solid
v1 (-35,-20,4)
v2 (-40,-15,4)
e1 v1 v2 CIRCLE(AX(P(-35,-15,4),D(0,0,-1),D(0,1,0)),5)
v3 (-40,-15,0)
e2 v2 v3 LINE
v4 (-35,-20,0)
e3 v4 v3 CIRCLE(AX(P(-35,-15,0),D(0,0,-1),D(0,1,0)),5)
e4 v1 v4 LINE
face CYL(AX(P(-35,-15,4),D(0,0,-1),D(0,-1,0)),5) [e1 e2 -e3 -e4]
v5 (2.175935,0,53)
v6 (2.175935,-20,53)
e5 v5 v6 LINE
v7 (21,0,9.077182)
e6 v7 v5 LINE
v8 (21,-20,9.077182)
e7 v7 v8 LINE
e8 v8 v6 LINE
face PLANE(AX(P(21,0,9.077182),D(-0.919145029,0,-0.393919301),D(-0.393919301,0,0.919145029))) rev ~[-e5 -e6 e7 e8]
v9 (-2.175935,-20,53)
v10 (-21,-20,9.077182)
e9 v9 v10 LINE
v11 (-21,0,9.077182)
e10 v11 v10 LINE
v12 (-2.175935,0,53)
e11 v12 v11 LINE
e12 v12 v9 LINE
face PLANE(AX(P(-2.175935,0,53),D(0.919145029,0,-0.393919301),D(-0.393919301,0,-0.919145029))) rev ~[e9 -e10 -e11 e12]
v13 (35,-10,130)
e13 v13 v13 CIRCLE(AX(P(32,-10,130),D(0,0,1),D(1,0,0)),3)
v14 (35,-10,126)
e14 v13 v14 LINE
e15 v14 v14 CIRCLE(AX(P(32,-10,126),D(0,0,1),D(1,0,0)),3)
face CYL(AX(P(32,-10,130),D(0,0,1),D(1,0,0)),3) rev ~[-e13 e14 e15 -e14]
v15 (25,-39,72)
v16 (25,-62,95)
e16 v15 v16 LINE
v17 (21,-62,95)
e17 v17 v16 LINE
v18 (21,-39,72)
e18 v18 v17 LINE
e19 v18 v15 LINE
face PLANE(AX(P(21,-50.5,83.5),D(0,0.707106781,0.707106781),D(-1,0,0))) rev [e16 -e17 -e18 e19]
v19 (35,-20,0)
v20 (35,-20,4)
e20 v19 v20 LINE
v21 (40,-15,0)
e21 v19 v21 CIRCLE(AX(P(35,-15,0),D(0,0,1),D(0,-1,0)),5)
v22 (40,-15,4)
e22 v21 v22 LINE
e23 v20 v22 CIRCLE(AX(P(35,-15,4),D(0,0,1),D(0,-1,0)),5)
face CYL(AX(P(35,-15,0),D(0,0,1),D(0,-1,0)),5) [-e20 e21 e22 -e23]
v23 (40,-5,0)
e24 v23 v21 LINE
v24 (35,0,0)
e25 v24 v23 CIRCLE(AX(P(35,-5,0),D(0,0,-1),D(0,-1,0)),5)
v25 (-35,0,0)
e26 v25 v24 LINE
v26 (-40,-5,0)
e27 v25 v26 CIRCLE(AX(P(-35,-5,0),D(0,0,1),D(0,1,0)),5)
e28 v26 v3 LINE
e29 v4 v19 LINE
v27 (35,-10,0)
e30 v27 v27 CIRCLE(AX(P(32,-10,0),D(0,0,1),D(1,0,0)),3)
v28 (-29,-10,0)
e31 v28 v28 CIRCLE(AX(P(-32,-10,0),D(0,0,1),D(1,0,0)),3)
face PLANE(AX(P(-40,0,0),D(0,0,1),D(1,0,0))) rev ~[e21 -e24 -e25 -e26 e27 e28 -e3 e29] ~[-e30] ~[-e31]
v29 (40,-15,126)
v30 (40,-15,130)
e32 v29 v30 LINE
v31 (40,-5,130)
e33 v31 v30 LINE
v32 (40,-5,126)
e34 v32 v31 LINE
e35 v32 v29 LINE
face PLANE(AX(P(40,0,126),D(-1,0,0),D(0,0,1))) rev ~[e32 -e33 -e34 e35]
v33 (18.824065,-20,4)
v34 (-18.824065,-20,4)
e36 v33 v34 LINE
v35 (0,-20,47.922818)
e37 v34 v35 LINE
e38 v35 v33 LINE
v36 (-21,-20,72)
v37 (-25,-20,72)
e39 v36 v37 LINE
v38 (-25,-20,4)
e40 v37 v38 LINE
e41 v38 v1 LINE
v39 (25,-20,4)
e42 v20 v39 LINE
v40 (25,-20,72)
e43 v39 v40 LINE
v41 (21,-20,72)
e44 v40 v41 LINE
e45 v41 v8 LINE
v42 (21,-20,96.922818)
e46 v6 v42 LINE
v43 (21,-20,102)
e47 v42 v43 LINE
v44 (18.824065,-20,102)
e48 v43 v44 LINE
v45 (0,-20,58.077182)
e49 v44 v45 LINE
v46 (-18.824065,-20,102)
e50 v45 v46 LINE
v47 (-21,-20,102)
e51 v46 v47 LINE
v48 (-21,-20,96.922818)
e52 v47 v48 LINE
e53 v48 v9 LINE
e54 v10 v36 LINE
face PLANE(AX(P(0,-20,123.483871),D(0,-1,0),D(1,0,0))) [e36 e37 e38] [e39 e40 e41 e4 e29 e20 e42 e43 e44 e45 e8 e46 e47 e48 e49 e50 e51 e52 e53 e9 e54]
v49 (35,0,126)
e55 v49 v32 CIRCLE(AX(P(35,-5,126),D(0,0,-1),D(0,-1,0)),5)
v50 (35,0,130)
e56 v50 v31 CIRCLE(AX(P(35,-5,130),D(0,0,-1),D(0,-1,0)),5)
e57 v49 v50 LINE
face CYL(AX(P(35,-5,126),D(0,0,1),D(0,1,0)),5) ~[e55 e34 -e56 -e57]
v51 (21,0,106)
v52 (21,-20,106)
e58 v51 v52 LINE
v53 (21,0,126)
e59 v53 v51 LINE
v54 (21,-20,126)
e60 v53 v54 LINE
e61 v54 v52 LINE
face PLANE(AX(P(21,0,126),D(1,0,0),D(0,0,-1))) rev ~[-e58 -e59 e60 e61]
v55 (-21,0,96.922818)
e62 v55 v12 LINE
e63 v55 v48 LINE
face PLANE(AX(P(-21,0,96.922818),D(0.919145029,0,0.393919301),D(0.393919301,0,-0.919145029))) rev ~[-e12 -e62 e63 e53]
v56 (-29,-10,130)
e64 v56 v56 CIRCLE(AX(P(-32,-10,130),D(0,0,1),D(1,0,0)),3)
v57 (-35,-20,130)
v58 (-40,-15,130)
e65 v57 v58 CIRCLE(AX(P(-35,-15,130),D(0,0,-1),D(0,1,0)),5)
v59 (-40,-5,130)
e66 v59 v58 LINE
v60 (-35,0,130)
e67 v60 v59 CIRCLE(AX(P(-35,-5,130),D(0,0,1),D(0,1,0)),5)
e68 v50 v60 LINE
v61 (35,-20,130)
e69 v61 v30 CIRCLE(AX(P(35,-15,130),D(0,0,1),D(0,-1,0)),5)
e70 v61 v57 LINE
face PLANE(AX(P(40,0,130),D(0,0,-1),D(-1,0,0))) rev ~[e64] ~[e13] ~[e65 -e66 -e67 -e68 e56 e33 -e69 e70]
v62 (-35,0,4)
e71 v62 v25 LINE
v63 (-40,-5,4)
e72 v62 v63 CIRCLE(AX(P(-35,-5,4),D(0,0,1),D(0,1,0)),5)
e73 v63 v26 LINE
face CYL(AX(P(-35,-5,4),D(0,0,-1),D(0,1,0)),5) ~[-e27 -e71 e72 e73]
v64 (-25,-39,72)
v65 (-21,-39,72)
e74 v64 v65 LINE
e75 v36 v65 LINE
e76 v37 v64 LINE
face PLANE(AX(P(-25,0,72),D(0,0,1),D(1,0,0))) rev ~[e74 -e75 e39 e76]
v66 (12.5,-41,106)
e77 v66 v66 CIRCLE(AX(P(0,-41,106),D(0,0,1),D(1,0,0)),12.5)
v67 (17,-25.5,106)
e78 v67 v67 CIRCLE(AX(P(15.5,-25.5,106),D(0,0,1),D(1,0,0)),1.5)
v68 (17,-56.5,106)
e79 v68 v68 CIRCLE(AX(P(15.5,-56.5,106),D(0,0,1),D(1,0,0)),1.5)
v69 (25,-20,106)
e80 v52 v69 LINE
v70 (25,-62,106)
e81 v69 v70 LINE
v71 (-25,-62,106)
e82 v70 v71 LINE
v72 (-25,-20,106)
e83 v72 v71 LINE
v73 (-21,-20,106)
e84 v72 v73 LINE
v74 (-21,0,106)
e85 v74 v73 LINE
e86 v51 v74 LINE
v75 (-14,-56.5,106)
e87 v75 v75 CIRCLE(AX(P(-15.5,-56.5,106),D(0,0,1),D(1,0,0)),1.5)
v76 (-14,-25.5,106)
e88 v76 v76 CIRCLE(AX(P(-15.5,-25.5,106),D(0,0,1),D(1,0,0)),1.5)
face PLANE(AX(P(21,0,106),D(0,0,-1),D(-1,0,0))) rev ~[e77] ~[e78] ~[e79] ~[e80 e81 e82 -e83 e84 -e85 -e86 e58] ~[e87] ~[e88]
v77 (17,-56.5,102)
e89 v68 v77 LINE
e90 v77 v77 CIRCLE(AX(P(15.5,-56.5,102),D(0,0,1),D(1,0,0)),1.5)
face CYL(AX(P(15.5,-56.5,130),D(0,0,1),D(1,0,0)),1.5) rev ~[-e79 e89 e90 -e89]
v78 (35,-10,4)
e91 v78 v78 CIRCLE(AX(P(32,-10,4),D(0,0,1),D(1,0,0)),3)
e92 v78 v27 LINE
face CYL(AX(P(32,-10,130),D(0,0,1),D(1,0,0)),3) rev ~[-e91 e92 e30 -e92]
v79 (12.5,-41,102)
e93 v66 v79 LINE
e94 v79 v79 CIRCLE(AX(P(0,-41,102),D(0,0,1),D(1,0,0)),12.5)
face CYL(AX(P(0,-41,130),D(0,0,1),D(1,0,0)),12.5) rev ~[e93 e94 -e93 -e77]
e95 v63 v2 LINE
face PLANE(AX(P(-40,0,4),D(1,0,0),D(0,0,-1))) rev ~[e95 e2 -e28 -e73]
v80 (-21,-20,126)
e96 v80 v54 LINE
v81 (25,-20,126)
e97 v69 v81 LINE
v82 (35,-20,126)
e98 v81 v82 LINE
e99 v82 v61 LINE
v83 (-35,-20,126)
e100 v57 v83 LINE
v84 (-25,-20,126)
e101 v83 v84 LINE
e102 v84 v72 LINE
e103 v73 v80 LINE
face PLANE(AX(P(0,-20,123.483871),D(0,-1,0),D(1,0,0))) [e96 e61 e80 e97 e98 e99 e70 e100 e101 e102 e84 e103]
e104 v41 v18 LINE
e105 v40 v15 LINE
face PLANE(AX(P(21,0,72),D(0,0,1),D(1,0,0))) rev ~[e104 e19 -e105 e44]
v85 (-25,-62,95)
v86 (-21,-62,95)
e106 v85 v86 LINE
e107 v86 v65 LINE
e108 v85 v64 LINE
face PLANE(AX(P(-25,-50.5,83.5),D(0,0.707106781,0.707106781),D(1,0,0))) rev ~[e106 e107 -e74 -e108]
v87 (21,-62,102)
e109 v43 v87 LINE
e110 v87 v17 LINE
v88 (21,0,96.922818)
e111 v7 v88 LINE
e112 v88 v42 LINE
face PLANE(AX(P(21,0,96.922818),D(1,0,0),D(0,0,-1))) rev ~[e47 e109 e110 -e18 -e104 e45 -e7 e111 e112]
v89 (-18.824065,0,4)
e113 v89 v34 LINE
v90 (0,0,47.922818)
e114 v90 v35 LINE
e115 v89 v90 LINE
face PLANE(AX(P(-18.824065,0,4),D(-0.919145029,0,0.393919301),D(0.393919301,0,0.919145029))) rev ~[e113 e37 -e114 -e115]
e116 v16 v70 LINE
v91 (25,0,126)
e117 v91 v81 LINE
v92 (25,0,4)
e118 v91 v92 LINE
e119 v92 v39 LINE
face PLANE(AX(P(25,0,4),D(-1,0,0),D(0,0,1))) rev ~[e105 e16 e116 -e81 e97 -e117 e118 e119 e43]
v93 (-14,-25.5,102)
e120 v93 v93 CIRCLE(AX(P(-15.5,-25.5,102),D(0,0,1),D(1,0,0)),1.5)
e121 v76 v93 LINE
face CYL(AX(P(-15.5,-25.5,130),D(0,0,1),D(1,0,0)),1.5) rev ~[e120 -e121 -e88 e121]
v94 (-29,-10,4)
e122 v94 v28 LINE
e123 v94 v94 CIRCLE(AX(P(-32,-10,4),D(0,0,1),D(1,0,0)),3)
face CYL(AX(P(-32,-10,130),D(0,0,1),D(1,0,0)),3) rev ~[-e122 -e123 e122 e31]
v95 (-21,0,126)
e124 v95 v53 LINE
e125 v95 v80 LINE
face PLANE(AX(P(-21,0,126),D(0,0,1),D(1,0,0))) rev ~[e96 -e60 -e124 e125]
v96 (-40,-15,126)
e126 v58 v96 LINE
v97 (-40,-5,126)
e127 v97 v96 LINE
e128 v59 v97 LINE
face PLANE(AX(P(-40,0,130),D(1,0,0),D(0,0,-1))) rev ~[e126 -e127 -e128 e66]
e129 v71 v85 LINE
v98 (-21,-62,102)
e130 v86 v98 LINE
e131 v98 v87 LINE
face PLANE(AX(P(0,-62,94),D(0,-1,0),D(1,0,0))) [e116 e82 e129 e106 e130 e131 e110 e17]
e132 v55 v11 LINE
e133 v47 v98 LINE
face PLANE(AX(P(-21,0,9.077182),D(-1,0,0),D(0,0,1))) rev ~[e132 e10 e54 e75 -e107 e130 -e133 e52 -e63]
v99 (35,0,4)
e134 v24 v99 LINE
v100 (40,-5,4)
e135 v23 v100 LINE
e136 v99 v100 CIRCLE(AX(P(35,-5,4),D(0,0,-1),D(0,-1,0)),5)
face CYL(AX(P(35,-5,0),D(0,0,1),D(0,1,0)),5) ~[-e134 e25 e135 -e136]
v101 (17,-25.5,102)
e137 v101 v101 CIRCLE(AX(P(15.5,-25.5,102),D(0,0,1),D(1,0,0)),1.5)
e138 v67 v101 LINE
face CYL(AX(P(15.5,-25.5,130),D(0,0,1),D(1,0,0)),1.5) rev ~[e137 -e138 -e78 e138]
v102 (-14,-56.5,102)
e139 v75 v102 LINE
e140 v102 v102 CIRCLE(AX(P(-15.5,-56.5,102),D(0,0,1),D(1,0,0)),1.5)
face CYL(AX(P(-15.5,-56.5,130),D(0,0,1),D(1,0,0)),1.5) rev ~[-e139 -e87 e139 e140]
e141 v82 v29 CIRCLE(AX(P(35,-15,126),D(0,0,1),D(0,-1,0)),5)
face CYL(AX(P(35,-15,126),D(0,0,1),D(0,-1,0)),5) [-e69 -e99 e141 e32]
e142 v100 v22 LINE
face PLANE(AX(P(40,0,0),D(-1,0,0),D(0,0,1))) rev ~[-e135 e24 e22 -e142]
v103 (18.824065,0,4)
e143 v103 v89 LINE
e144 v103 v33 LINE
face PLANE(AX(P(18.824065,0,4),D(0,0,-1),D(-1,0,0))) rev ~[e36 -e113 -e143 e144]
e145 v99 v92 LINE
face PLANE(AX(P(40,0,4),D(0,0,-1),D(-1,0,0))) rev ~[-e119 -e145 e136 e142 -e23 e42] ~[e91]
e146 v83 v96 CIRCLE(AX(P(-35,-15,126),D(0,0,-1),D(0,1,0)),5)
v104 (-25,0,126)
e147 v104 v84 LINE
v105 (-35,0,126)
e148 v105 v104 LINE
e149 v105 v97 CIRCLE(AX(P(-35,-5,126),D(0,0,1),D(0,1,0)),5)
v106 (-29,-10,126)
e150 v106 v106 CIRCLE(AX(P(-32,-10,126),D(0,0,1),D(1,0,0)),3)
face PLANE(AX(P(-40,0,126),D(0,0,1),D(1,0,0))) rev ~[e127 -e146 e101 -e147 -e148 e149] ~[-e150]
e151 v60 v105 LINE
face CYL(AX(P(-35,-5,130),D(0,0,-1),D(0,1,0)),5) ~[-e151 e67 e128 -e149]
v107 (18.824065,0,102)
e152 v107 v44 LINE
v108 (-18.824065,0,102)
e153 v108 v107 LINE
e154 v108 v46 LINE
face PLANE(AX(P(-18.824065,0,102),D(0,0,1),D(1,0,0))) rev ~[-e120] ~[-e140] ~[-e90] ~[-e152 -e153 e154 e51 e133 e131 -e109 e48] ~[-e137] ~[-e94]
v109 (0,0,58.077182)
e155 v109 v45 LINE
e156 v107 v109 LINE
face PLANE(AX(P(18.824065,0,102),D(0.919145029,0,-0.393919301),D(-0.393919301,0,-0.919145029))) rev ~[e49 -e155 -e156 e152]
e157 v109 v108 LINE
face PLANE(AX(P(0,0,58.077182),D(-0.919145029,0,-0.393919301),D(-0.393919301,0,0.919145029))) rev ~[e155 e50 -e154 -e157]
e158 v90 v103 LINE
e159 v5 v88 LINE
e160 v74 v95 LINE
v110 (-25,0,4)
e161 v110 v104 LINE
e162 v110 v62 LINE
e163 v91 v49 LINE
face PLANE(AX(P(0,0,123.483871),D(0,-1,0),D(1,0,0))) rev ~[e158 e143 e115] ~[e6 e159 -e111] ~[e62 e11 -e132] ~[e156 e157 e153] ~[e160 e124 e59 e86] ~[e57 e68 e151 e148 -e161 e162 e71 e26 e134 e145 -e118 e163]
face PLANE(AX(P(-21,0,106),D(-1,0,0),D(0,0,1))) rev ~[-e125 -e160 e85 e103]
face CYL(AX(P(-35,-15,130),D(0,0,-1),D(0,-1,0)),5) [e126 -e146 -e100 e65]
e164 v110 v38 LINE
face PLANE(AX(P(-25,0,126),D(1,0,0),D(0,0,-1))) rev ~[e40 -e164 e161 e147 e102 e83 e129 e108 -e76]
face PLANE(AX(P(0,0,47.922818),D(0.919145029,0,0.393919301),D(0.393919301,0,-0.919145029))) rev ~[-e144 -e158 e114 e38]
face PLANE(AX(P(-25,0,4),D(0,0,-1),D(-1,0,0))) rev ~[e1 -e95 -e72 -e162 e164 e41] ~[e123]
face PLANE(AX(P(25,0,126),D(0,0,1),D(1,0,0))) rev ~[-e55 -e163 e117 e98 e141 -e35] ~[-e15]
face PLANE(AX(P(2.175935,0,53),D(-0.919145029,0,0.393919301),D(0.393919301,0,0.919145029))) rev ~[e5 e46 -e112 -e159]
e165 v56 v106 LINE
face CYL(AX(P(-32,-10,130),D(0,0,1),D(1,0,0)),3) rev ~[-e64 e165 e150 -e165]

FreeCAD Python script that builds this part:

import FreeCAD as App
import Part
import Sketcher

V = App.Vector
Q = App.Units.Quantity


def edges_at(feature, points):
    """Names of the edges that pass closest to the given points."""
    edges = feature.Shape.Edges
    near = lambda p: min(range(len(edges)), key=lambda i: edges[i].distToShape(Part.Vertex(*p))[0])
    return sorted({f"Edge{near(p) + 1}" for p in points})


def add_polygon(sketch, points):
    """Adds a closed chain of lines whose ends are joined by coincident constraints."""
    first, n = sketch.GeometryCount, len(points)
    for a, b in zip(points, points[1:] + points[:1]):
        sketch.addGeometry(Part.LineSegment(App.Vector(*a, 0), App.Vector(*b, 0)), False)
    for i in range(n):
        sketch.addConstraint(Sketcher.Constraint("Coincident", first + i, 2, first + (i + 1) % n, 1))

doc = App.newDocument("Part")
params = doc.addObject("Spreadsheet::Sheet", "Params")
for row, (alias, value) in enumerate([
    ("sketch1_width", "80 mm"),
    ("sketch1_width2", "15 mm"),
    ("sketch1_width3", "42 mm"),
    ("sketch1_height", "4 mm"),
    ("sketch1_height2", "122 mm"),
    ("pad1_length", "20 mm"),
    ("sketch2_width", "4 mm"),
    ("sketch2_width2", "42 mm"),
    ("sketch2_height", "34 mm"),
    ("sketch2_height2", "30 mm"),
    ("pad2_length", "62 mm"),
    ("sketch3_diameter", "25 mm"),
    ("sketch3_diameter2", "3 mm"),
    ("sketch3_diameter3", "6 mm"),
    ("pocket1_length", "130 mm"),
    ("chamfer_size", "23 mm"),
    ("fillet_radius", "5 mm"),
], start=1):
    params.set(f"A{row}", alias)
    params.set(f"B{row}", "=" + value)
    params.setAlias(f"B{row}", alias)

body = doc.addObject("PartDesign::Body", "Body")

sketch1 = body.newObject("Sketcher::SketchObject", "Sketch")
sketch1.AttachmentSupport = (doc.getObject("XZ_Plane"), [""])
sketch1.MapMode = "FlatFace"
add_polygon(sketch1, [(40, 130), (-40, 130), (-40, 126), (-25, 126), (-25, 4), (-40, 4), (-40, 0), (40, 0), (40, 4), (25, 4), (25, 126), (40, 126)])
add_polygon(sketch1, [(-18.8, 102), (18.8, 102), (0, 58.1)])
add_polygon(sketch1, [(21, 96.9), (21, 9.1), (2.2, 53)])
add_polygon(sketch1, [(18.8, 4), (-18.8, 4), (0, 47.9)])
add_polygon(sketch1, [(-21, 9.1), (-21, 96.9), (-2.2, 53)])
add_polygon(sketch1, [(-21, 106), (-21, 126), (21, 126), (21, 106)])
sketch1.addConstraint(Sketcher.Constraint("Horizontal", 0))
sketch1.addConstraint(Sketcher.Constraint("Vertical", 1))
sketch1.addConstraint(Sketcher.Constraint("Horizontal", 2))
sketch1.addConstraint(Sketcher.Constraint("Vertical", 3))
sketch1.addConstraint(Sketcher.Constraint("Horizontal", 4))
sketch1.addConstraint(Sketcher.Constraint("Vertical", 5))
sketch1.addConstraint(Sketcher.Constraint("Horizontal", 6))
sketch1.addConstraint(Sketcher.Constraint("Vertical", 7))
sketch1.addConstraint(Sketcher.Constraint("Horizontal", 8))
sketch1.addConstraint(Sketcher.Constraint("Vertical", 9))
sketch1.addConstraint(Sketcher.Constraint("Horizontal", 10))
sketch1.addConstraint(Sketcher.Constraint("Vertical", 11))
sketch1.addConstraint(Sketcher.Constraint("Horizontal", 12))
sketch1.addConstraint(Sketcher.Constraint("Vertical", 15))
sketch1.addConstraint(Sketcher.Constraint("Horizontal", 18))
sketch1.addConstraint(Sketcher.Constraint("Vertical", 21))
sketch1.addConstraint(Sketcher.Constraint("Vertical", 24))
sketch1.addConstraint(Sketcher.Constraint("Horizontal", 25))
sketch1.addConstraint(Sketcher.Constraint("Vertical", 26))
sketch1.addConstraint(Sketcher.Constraint("Horizontal", 27))
sketch1.addConstraint(Sketcher.Constraint("Symmetric", 5, 2, 6, 2, -1, 1))
sketch1.addConstraint(Sketcher.Constraint("Symmetric", 3, 2, 8, 2, -2))
sketch1.addConstraint(Sketcher.Constraint("Symmetric", 1, 2, 10, 2, -2))
sketch1.addConstraint(Sketcher.Constraint("Symmetric", 17, 2, 21, 2, -2))
sketch1.addConstraint(Sketcher.Constraint("Symmetric", 16, 2, 22, 2, -2))
sketch1.addConstraint(Sketcher.Constraint("PointOnObject", 13, 2, -2))
sketch1.addConstraint(Sketcher.Constraint("PointOnObject", 19, 2, -2))
sketch1.addConstraint(Sketcher.Constraint("Parallel", 14, 16))
sketch1.addConstraint(Sketcher.Constraint("Parallel", 13, 17))
sketch1.addConstraint(Sketcher.Constraint("Parallel", 17, 19))
sketch1.addConstraint(Sketcher.Constraint("Parallel", 16, 20))
sketch1.addConstraint(Sketcher.Constraint("Parallel", 20, 22))
sketch1.addConstraint(Sketcher.Constraint("Parallel", 19, 23))
sketch1.addConstraint(Sketcher.Constraint("Horizontal", 8, 2, 18, 2))
sketch1.addConstraint(Sketcher.Constraint("Horizontal", 10, 2, 24, 2))
sketch1.addConstraint(Sketcher.Constraint("Vertical", 1, 2, 4, 2))
sketch1.addConstraint(Sketcher.Constraint("Vertical", 14, 2, 18, 2))
sketch1.addConstraint(Sketcher.Constraint("Vertical", 23, 2, 24, 2))
sketch1.addConstraint(Sketcher.Constraint("Vertical", 17, 2, 25, 2))
sketch1.addConstraint(Sketcher.Constraint("Equal", 1, 5))
sketch1.addConstraint(Sketcher.Constraint("Equal", 14, 16))
sketch1.addConstraint(Sketcher.Constraint("DistanceX", 0, 2, 0, 1, Q("80 mm")))
sketch1.addConstraint(Sketcher.Constraint("DistanceX", 2, 1, 2, 2, Q("15 mm")))
sketch1.addConstraint(Sketcher.Constraint("DistanceX", 25, 1, 25, 2, Q("42 mm")))
sketch1.addConstraint(Sketcher.Constraint("DistanceY", 1, 2, 1, 1, Q("4 mm")))
sketch1.addConstraint(Sketcher.Constraint("DistanceY", 3, 2, 3, 1, Q("122 mm")))
sketch1.addConstraint(Sketcher.Constraint("DistanceY", 24, 1, 24, 2, Q("20 mm")))
sketch1.addConstraint(Sketcher.Constraint("DistanceY", -1, 1, 12, 2, Q("102 mm")))
sketch1.addConstraint(Sketcher.Constraint("DistanceY", -1, 1, 16, 2, Q("53 mm")))
sketch1.addConstraint(Sketcher.Constraint("DistanceX", 12, 1, 12, 2, Q("37.64813 mm")))
sketch1.addConstraint(Sketcher.Constraint("DistanceY", 15, 2, 15, 1, Q("87.845636 mm")))
sketch1.setExpression("Constraints[69]", "Params.sketch1_width")
sketch1.setExpression("Constraints[70]", "Params.sketch1_width2")
sketch1.setExpression("Constraints[71]", "Params.sketch1_width3")
sketch1.setExpression("Constraints[72]", "Params.sketch1_height")
sketch1.setExpression("Constraints[73]", "Params.sketch1_height2")
pad1 = body.newObject("PartDesign::Pad", "Pad")
pad1.Profile = sketch1
pad1.setExpression("Length", "Params.pad1_length")

sketch2 = body.newObject("Sketcher::SketchObject", "Sketch001")
sketch2.AttachmentSupport = (doc.getObject("XZ_Plane"), [""])
sketch2.MapMode = "FlatFace"
add_polygon(sketch2, [(-25, 106), (-25, 72), (-21, 72), (-21, 102), (21, 102), (21, 72), (25, 72), (25, 106)])
sketch2.addConstraint(Sketcher.Constraint("Vertical", 0))
sketch2.addConstraint(Sketcher.Constraint("Horizontal", 1))
sketch2.addConstraint(Sketcher.Constraint("Vertical", 2))
sketch2.addConstraint(Sketcher.Constraint("Horizontal", 3))
sketch2.addConstraint(Sketcher.Constraint("Vertical", 4))
sketch2.addConstraint(Sketcher.Constraint("Horizontal", 5))
sketch2.addConstraint(Sketcher.Constraint("Vertical", 6))
sketch2.addConstraint(Sketcher.Constraint("Horizontal", 7))
sketch2.addConstraint(Sketcher.Constraint("Symmetric", 1, 2, 4, 2, -2))
sketch2.addConstraint(Sketcher.Constraint("Equal", 1, 5))
sketch2.addConstraint(Sketcher.Constraint("DistanceX", 1, 1, 1, 2, Q("4 mm")))
sketch2.addConstraint(Sketcher.Constraint("DistanceX", 3, 1, 3, 2, Q("42 mm")))
sketch2.addConstraint(Sketcher.Constraint("DistanceY", 0, 2, 0, 1, Q("34 mm")))
sketch2.addConstraint(Sketcher.Constraint("DistanceY", 2, 1, 2, 2, Q("30 mm")))
sketch2.addConstraint(Sketcher.Constraint("DistanceY", -1, 1, 0, 2, Q("72 mm")))
sketch2.setExpression("Constraints[18]", "Params.sketch2_width")
sketch2.setExpression("Constraints[19]", "Params.sketch2_width2")
sketch2.setExpression("Constraints[20]", "Params.sketch2_height")
sketch2.setExpression("Constraints[21]", "Params.sketch2_height2")
pad2 = body.newObject("PartDesign::Pad", "Pad001")
pad2.Profile = sketch2
pad2.setExpression("Length", "Params.pad2_length")

sketch3 = body.newObject("Sketcher::SketchObject", "Sketch002")
sketch3.AttachmentSupport = (doc.getObject("XY_Plane"), [""])
sketch3.MapMode = "FlatFace"
sketch3.AttachmentOffset = App.Placement(V(0, 0, 130), App.Rotation())
sketch3.addGeometry(Part.Circle(V(0, -41, 0), V(0, 0, 1), 12.5), False)
sketch3.addGeometry(Part.Circle(V(-15.5, -56.5, 0), V(0, 0, 1), 1.5), False)
sketch3.addGeometry(Part.Circle(V(15.5, -56.5, 0), V(0, 0, 1), 1.5), False)
sketch3.addGeometry(Part.Circle(V(15.5, -25.5, 0), V(0, 0, 1), 1.5), False)
sketch3.addGeometry(Part.Circle(V(-15.5, -25.5, 0), V(0, 0, 1), 1.5), False)
sketch3.addGeometry(Part.Circle(V(-32, -10, 0), V(0, 0, 1), 3), False)
sketch3.addGeometry(Part.Circle(V(32, -10, 0), V(0, 0, 1), 3), False)
sketch3.addConstraint(Sketcher.Constraint("Equal", 1, 2))
sketch3.addConstraint(Sketcher.Constraint("Equal", 2, 3))
sketch3.addConstraint(Sketcher.Constraint("Equal", 3, 4))
sketch3.addConstraint(Sketcher.Constraint("Equal", 5, 6))
sketch3.addConstraint(Sketcher.Constraint("Symmetric", 1, 3, 2, 3, -2))
sketch3.addConstraint(Sketcher.Constraint("Symmetric", 3, 3, 4, 3, -2))
sketch3.addConstraint(Sketcher.Constraint("Symmetric", 5, 3, 6, 3, -2))
sketch3.addConstraint(Sketcher.Constraint("PointOnObject", 0, 3, -2))
sketch3.addConstraint(Sketcher.Constraint("Vertical", 2, 3, 3, 3))
sketch3.addConstraint(Sketcher.Constraint("Diameter", 0, Q("25 mm")))
sketch3.addConstraint(Sketcher.Constraint("Diameter", 1, Q("3 mm")))
sketch3.addConstraint(Sketcher.Constraint("Diameter", 5, Q("6 mm")))
sketch3.addConstraint(Sketcher.Constraint("DistanceY", 0, 3, -1, 1, Q("41 mm")))
sketch3.addConstraint(Sketcher.Constraint("DistanceX", 5, 3, -1, 1, Q("32 mm")))
sketch3.addConstraint(Sketcher.Constraint("DistanceY", 5, 3, -1, 1, Q("10 mm")))
sketch3.addConstraint(Sketcher.Constraint("DistanceX", 1, 3, 2, 3, Q("31 mm")))
sketch3.addConstraint(Sketcher.Constraint("DistanceY", 2, 3, 3, 3, Q("31 mm")))
sketch3.addConstraint(Sketcher.Constraint("DistanceY", 1, 3, -1, 1, Q("56.5 mm")))
sketch3.setExpression("Constraints[9]", "Params.sketch3_diameter")
sketch3.setExpression("Constraints[10]", "Params.sketch3_diameter2")
sketch3.setExpression("Constraints[11]", "Params.sketch3_diameter3")
pocket1 = body.newObject("PartDesign::Pocket", "Pocket")
pocket1.Profile = sketch3
pocket1.setExpression("Length", "Params.pocket1_length")
doc.recompute()

chamfer = body.newObject("PartDesign::Chamfer", "Chamfer")
chamfer.Base = (pocket1, edges_at(pocket1, [(-23, -62, 72), (23, -62, 72)]))
chamfer.setExpression("Size", "Params.chamfer_size")
doc.recompute()

fillet = body.newObject("PartDesign::Fillet", "Fillet")
fillet.Base = (chamfer, edges_at(chamfer, [
    (-40, 0, 128),
    (-40, -20, 128),
    (40, 0, 128),
    (40, -20, 128),
    (40, 0, 2),
    (40, -20, 2),
    (-40, 0, 2),
    (-40, -20, 2),
]))
fillet.setExpression("Radius", "Params.fillet_radius")

doc.recompute()
